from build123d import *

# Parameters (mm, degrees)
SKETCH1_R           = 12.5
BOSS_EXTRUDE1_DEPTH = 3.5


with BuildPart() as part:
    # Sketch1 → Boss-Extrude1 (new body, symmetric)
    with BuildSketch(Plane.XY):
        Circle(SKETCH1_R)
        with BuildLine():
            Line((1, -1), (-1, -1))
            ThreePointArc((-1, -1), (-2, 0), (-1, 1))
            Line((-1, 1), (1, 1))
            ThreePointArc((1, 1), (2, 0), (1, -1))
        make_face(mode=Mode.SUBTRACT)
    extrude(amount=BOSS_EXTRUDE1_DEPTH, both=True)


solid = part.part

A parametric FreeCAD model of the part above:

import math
import FreeCAD as App
import Part
import Sketcher

V = App.Vector
Q = App.Units.Quantity

doc = App.newDocument("Part")
params = doc.addObject("Spreadsheet::Sheet", "Params")
for row, (alias, value) in enumerate([
    ("sketch1_diameter", "25 mm"),
    ("sketch1_radius", "1 mm"),
    ("sketch1_width", "2 mm"),
    ("pad1_length", "7 mm"),
], start=1):
    params.set(f"A{row}", alias)
    params.set(f"B{row}", "=" + value)
    params.setAlias(f"B{row}", alias)

body = doc.addObject("PartDesign::Body", "Body")

sketch1 = body.newObject("Sketcher::SketchObject", "Sketch")
sketch1.AttachmentSupport = (doc.getObject("XY_Plane"), [""])
sketch1.MapMode = "FlatFace"
sketch1.addGeometry([
    Part.Circle(V(0, 0, 0), V(0, 0, 1), 12.5),
    Part.ArcOfCircle(Part.Circle(V(1, 0, 0), V(0, 0, 1), 1), math.radians(-90), math.radians(90)),
    Part.LineSegment(V(1, -1, 0), V(-1, -1, 0)),
    Part.ArcOfCircle(Part.Circle(V(-1, 0, 0), V(0, 0, 1), 1), math.radians(90), math.radians(270)),
    Part.LineSegment(V(-1, 1, 0), V(1, 1, 0)),
], False)
sketch1.addConstraint([
    Sketcher.Constraint("Tangent", 1, 1, 2, 1),
    Sketcher.Constraint("Tangent", 2, 2, 3, 2),
    Sketcher.Constraint("Tangent", 3, 1, 4, 1),
    Sketcher.Constraint("Tangent", 4, 2, 1, 2),
    Sketcher.Constraint("Horizontal", 2),
    Sketcher.Constraint("Horizontal", 4),
    Sketcher.Constraint("Coincident", 0, 3, -1, 1),
    Sketcher.Constraint("Symmetric", 1, 3, 3, 3, -1, 1),
    Sketcher.Constraint("Diameter", 0, Q("25 mm")),
    Sketcher.Constraint("Radius", 1, Q("1 mm")),
    Sketcher.Constraint("DistanceX", 2, 2, 2, 1, Q("2 mm")),
])
sketch1.setExpression("Constraints[8]", "Params.sketch1_diameter")
sketch1.setExpression("Constraints[9]", "Params.sketch1_radius")
sketch1.setExpression("Constraints[10]", "Params.sketch1_width")
pad1 = body.newObject("PartDesign::Pad", "Pad")
pad1.Profile = sketch1
pad1.setExpression("Length", "Params.pad1_length")
pad1.Midplane = True

doc.recompute()
